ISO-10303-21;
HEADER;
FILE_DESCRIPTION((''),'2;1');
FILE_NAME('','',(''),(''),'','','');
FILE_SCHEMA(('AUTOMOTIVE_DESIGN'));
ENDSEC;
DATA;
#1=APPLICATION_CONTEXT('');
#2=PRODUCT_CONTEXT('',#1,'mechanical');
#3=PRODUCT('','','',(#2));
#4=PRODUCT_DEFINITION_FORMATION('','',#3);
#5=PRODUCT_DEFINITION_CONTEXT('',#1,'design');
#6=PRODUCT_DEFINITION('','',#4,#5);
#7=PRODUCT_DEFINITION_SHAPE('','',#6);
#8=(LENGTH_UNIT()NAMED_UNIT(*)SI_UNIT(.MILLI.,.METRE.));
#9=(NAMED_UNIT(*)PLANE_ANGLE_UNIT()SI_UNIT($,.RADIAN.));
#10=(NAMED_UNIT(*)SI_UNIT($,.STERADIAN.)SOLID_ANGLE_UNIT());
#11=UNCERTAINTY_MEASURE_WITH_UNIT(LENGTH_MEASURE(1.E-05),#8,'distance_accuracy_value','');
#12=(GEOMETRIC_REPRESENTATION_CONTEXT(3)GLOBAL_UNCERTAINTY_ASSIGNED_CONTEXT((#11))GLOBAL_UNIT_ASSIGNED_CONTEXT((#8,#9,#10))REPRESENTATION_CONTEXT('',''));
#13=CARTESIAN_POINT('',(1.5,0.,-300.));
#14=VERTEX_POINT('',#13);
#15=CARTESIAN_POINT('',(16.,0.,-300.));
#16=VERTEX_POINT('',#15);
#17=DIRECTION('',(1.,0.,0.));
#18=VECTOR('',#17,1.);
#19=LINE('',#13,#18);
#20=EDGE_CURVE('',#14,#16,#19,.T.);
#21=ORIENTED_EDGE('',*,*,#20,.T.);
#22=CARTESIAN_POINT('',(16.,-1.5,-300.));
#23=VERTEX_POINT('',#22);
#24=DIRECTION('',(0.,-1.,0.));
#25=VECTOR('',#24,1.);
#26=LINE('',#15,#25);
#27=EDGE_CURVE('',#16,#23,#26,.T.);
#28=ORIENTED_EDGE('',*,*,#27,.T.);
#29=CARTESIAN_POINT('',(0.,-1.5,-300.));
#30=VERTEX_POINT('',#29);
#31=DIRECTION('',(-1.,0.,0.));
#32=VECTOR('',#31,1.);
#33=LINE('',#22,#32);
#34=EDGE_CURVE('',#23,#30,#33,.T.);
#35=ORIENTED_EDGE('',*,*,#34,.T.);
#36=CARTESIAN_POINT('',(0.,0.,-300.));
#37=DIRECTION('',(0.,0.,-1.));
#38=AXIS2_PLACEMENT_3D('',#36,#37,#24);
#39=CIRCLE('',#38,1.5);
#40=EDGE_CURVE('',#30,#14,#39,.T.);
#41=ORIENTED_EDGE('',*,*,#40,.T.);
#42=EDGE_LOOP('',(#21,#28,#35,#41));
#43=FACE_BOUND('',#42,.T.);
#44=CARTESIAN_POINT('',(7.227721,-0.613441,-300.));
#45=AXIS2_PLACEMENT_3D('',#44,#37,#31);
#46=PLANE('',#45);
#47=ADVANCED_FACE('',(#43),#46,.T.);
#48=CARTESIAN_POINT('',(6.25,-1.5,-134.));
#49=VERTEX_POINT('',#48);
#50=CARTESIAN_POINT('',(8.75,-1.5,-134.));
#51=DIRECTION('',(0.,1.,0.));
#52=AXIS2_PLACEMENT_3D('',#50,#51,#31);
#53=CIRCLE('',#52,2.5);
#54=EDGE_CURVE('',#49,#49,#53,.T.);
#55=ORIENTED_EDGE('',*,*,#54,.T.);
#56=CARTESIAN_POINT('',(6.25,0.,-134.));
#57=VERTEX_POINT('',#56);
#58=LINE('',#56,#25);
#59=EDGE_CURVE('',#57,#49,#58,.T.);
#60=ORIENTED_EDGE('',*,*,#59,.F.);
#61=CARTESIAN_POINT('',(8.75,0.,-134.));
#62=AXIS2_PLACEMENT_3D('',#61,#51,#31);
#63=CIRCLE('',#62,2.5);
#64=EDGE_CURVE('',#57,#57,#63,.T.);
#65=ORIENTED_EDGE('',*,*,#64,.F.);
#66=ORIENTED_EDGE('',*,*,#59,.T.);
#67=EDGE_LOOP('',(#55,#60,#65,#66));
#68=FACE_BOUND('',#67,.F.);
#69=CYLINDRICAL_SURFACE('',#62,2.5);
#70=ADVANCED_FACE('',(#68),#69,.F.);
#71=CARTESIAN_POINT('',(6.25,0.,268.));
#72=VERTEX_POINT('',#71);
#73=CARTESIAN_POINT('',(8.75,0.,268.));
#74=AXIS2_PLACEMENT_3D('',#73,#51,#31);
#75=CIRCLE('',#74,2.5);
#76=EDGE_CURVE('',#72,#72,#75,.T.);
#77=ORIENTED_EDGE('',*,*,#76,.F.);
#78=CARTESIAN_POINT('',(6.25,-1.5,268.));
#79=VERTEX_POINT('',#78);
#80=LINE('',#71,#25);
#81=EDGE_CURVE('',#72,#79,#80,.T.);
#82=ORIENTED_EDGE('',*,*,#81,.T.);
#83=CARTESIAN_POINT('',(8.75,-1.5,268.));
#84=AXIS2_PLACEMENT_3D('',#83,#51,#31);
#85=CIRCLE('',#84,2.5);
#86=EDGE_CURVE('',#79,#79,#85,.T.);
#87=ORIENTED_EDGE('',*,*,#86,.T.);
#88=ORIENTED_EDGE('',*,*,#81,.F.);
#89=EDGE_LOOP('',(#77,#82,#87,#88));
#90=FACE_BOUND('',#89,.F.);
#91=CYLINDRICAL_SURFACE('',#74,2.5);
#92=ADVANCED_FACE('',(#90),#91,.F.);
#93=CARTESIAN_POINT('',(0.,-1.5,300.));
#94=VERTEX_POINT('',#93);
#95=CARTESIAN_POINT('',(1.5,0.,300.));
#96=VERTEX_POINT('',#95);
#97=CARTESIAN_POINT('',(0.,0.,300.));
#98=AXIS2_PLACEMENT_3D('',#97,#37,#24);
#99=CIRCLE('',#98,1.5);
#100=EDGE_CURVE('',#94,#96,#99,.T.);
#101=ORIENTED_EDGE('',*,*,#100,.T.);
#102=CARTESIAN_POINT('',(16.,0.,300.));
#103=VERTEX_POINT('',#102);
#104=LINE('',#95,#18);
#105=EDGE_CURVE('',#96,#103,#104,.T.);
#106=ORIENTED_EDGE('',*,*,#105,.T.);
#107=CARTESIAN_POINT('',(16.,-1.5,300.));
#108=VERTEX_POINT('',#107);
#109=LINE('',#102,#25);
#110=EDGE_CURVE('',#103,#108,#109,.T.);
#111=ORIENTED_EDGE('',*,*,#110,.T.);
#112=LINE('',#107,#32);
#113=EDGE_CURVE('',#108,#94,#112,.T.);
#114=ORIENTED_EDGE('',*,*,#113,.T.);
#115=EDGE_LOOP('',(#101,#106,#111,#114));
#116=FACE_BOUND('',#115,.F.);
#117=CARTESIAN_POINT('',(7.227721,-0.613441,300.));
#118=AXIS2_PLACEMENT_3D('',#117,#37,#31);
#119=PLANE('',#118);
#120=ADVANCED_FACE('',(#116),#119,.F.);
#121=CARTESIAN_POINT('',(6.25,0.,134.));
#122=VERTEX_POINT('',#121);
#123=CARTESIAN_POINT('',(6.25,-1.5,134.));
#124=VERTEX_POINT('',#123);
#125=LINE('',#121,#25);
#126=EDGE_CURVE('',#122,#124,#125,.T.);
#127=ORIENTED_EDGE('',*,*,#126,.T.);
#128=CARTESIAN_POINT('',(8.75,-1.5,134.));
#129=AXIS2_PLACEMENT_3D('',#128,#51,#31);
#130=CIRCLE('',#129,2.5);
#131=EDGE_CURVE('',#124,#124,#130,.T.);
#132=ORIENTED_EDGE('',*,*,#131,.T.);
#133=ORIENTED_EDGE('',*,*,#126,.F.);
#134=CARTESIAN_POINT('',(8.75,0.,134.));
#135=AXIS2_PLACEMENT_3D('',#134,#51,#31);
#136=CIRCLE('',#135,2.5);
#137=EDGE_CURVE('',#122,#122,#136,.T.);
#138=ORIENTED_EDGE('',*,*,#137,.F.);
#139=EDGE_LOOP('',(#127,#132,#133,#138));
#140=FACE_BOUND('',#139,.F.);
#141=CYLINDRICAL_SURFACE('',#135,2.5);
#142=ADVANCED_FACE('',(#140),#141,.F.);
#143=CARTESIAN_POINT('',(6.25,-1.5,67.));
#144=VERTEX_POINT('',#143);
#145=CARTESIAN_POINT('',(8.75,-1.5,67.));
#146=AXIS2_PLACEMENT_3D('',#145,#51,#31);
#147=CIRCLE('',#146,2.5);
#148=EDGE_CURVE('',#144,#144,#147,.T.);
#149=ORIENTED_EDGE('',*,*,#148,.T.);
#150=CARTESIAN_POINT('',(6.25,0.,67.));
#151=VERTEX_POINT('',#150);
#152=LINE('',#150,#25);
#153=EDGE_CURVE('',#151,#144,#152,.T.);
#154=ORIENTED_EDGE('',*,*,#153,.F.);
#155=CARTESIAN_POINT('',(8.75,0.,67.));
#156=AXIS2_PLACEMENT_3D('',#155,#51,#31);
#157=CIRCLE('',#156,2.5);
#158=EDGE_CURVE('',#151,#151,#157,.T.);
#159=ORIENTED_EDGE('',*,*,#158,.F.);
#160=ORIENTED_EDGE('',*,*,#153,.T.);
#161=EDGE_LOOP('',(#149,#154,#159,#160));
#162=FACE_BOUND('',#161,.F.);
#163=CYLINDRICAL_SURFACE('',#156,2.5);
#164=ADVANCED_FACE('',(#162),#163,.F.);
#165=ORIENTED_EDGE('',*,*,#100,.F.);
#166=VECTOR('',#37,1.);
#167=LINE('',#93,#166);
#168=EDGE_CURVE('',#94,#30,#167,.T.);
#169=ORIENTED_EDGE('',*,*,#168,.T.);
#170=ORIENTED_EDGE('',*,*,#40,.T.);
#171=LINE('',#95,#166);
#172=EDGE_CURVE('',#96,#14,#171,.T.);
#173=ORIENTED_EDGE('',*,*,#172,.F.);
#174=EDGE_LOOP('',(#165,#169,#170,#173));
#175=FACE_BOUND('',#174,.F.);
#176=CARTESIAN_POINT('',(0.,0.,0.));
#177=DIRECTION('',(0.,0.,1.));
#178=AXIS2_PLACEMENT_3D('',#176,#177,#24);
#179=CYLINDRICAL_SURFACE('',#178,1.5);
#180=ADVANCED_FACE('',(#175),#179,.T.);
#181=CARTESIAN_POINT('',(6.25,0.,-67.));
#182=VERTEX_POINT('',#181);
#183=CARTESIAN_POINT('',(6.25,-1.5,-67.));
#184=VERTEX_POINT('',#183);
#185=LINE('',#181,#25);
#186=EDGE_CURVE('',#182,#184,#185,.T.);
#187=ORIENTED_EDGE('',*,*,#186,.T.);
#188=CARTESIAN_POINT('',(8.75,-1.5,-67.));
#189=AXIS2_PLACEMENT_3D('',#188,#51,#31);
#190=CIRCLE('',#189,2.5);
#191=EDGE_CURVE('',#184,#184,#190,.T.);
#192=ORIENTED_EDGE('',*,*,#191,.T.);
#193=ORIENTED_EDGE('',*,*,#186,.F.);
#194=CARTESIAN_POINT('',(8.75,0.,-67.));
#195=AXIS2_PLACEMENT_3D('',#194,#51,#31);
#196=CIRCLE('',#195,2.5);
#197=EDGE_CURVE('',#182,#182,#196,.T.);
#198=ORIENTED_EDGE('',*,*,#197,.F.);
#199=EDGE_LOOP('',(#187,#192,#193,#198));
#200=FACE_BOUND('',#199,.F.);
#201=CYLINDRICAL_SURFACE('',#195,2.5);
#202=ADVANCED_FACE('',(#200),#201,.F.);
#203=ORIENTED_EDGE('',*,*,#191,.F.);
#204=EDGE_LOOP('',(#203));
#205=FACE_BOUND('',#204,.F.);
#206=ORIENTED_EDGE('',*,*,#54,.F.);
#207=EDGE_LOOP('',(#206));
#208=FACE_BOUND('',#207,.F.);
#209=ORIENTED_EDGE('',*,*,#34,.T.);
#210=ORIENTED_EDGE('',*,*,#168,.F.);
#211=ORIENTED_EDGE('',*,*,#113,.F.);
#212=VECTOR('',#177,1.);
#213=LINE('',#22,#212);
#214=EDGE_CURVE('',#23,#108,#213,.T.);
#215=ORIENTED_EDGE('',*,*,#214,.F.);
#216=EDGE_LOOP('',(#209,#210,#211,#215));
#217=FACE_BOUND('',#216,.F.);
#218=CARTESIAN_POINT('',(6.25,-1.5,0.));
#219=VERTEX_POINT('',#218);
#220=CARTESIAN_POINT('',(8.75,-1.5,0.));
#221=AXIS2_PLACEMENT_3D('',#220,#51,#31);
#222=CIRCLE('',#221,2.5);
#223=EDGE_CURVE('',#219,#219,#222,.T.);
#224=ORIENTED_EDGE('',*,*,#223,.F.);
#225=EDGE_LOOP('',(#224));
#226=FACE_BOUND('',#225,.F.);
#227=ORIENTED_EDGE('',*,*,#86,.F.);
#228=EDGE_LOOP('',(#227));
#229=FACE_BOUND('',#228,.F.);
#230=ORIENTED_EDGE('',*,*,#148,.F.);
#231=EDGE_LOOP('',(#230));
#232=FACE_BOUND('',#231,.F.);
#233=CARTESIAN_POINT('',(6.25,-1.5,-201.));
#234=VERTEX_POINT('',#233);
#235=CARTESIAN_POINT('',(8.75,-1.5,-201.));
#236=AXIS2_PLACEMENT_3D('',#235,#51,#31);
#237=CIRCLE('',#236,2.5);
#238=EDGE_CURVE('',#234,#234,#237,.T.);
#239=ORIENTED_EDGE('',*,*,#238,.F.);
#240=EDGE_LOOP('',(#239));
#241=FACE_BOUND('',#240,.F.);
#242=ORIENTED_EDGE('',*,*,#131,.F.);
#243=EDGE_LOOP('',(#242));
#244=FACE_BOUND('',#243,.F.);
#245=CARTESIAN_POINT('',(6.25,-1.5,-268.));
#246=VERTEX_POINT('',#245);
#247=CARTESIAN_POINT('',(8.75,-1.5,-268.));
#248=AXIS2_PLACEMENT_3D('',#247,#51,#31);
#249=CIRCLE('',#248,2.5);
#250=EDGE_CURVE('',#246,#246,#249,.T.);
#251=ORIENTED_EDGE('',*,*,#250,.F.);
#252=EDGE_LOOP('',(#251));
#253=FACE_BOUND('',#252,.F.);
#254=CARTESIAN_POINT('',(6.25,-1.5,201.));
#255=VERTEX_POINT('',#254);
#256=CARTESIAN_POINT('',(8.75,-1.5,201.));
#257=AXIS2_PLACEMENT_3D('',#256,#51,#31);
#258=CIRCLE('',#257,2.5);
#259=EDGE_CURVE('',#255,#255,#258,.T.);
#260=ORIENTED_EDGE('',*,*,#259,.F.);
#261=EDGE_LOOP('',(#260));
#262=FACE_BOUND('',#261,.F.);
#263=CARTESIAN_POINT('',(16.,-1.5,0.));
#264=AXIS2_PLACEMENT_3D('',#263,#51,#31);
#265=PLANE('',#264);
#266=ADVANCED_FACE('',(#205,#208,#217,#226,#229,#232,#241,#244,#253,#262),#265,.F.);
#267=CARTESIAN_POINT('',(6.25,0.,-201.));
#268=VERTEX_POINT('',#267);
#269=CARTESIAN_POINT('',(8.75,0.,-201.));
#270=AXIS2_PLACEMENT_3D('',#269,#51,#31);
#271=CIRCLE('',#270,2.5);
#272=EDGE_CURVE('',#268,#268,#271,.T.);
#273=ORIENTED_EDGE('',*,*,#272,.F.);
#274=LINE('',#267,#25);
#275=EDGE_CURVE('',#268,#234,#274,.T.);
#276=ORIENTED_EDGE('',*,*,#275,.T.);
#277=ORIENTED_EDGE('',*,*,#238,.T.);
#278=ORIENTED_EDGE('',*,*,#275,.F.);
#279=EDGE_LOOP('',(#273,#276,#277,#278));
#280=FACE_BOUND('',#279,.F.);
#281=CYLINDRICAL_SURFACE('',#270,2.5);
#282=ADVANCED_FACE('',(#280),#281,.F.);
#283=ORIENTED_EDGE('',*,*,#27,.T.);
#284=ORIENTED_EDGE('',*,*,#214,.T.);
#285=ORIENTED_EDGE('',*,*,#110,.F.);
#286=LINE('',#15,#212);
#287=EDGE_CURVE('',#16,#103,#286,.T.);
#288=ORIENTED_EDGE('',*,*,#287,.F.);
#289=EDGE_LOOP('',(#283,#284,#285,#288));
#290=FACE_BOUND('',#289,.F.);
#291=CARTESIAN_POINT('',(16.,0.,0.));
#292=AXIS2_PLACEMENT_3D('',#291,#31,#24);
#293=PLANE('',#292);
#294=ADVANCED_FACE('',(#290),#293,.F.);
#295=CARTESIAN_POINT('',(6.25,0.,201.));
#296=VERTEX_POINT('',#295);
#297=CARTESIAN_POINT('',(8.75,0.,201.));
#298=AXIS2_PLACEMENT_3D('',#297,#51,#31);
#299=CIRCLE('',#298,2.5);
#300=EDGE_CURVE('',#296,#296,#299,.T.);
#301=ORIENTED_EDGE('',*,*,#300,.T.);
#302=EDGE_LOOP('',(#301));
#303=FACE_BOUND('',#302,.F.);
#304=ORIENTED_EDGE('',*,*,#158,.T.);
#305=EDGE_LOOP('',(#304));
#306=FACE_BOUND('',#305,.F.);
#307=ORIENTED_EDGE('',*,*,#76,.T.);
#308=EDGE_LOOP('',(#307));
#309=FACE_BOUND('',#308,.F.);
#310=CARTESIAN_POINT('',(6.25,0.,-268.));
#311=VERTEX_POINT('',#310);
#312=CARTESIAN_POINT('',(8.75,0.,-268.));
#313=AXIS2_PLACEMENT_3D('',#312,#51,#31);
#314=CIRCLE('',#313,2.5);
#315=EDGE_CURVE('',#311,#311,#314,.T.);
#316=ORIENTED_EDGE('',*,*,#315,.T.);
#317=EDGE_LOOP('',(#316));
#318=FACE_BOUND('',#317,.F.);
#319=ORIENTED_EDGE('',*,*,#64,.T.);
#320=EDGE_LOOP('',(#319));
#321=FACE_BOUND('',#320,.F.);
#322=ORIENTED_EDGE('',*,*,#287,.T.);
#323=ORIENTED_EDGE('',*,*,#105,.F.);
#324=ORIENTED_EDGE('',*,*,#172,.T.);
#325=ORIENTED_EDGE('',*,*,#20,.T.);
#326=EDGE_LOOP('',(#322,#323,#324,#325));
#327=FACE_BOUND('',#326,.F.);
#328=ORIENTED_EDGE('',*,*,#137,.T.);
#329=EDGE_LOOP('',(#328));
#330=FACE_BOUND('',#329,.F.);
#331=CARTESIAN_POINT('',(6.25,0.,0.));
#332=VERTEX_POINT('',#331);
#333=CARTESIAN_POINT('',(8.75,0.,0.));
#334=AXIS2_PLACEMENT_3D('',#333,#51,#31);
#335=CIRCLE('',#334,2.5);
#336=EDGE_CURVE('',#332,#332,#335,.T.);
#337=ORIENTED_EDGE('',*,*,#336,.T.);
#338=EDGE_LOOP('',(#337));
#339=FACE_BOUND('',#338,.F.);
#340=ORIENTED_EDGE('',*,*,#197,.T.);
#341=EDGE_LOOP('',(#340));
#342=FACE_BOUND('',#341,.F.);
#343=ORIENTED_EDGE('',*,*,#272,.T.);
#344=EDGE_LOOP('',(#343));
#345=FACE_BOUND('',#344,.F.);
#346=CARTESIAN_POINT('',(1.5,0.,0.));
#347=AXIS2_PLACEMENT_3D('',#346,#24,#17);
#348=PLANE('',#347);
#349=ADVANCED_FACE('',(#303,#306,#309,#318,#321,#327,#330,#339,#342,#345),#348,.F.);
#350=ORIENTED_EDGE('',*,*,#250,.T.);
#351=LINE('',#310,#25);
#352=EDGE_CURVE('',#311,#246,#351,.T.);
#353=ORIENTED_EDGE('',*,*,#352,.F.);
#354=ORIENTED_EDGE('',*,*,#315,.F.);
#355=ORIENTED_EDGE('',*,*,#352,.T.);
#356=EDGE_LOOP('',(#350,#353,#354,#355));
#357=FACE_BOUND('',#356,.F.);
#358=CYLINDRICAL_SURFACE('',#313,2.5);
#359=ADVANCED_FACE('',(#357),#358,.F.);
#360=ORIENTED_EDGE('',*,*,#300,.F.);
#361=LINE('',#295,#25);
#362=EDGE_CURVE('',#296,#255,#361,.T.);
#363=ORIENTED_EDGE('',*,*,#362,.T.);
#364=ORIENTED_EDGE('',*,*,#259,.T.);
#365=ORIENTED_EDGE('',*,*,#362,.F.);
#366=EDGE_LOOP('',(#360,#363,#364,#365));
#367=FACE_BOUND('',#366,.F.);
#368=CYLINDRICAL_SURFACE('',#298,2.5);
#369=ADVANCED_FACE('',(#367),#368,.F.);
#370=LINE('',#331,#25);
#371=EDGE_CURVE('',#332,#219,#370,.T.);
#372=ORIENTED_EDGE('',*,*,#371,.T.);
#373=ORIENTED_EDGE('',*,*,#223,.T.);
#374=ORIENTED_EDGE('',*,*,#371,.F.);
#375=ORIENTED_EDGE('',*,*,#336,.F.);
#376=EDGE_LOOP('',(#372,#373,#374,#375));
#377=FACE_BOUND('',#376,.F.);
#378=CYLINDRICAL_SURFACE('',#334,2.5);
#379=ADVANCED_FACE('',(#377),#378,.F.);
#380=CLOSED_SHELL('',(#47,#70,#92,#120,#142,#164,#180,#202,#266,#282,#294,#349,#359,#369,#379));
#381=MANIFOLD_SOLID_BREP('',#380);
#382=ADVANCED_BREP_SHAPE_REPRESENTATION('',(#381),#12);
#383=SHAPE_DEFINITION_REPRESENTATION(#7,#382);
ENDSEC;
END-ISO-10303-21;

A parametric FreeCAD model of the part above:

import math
import FreeCAD as App
import Part
import Sketcher
from FreeCAD import Vector

doc = App.newDocument("Part")
body = doc.addObject("PartDesign::Body", "Body")

sketch1 = body.newObject("Sketcher::SketchObject", "Sketch")
sketch1.AttachmentSupport = (doc.getObject("XY_Plane"), [""])
sketch1.MapMode = "FlatFace"
sketch1.addGeometry([
    Part.LineSegment(Vector(0, -1.5, 0), Vector(16, -1.5, 0)),
    Part.LineSegment(Vector(16, -1.5, 0), Vector(16, 0, 0)),
    Part.LineSegment(Vector(16, 0, 0), Vector(1.5, 0, 0)),
    Part.ArcOfCircle(Part.Circle(Vector(0, 0, 0), Vector(0, 0, 1), 1.5), math.radians(0), math.radians(270)),
], False)
sketch1.addConstraint([
    Sketcher.Constraint("Coincident", 0, 2, 1, 1),
    Sketcher.Constraint("Coincident", 1, 2, 2, 1),
    Sketcher.Constraint("Coincident", 2, 2, 3, 1),
    Sketcher.Constraint("Tangent", 3, 2, 0, 1),
    Sketcher.Constraint("Horizontal", 0),
    Sketcher.Constraint("Vertical", 1),
    Sketcher.Constraint("Horizontal", 2),
    Sketcher.Constraint("Coincident", 3, 3, -1, 1),
    Sketcher.Constraint("PointOnObject", 1, 2, -1),
    Sketcher.Constraint("Radius", 3, 1.5),
    Sketcher.Constraint("DistanceX", 0, 1, 0, 2, 16.0),
])
pad1 = body.newObject("PartDesign::Pad", "Pad")
pad1.Profile = sketch1
pad1.Length = 600
pad1.Midplane = True

sketch2 = body.newObject("Sketcher::SketchObject", "Sketch001")
sketch2.AttachmentSupport = (doc.getObject("XZ_Plane"), [""])
sketch2.MapMode = "FlatFace"
sketch2.addGeometry(Part.Circle(Vector(8.8, 268, 0), Vector(0, 0, 1), 2.5), False)
sketch2.addConstraint([
    Sketcher.Constraint("Diameter", 0, 5.0),
    Sketcher.Constraint("DistanceY", -1, 1, 0, 3, 268.0),
    Sketcher.Constraint("DistanceX", -1, 1, 0, 3, 8.75),
])
pocket1 = body.newObject("PartDesign::Pocket", "Pocket")
pocket1.Profile = sketch2
pocket1.Type = "ThroughAll"
pocket1.Reversed = True
doc.recompute()

linearpattern = body.newObject("PartDesign::LinearPattern", "LinearPattern")
linearpattern.Originals = [pocket1]
linearpattern.Direction = (doc.getObject("Z_Axis"), [""])
linearpattern.Mode = "offset"
linearpattern.Offset = 67
linearpattern.Occurrences = 9
linearpattern.Reversed = True
body.Tip = linearpattern

doc.recompute()
